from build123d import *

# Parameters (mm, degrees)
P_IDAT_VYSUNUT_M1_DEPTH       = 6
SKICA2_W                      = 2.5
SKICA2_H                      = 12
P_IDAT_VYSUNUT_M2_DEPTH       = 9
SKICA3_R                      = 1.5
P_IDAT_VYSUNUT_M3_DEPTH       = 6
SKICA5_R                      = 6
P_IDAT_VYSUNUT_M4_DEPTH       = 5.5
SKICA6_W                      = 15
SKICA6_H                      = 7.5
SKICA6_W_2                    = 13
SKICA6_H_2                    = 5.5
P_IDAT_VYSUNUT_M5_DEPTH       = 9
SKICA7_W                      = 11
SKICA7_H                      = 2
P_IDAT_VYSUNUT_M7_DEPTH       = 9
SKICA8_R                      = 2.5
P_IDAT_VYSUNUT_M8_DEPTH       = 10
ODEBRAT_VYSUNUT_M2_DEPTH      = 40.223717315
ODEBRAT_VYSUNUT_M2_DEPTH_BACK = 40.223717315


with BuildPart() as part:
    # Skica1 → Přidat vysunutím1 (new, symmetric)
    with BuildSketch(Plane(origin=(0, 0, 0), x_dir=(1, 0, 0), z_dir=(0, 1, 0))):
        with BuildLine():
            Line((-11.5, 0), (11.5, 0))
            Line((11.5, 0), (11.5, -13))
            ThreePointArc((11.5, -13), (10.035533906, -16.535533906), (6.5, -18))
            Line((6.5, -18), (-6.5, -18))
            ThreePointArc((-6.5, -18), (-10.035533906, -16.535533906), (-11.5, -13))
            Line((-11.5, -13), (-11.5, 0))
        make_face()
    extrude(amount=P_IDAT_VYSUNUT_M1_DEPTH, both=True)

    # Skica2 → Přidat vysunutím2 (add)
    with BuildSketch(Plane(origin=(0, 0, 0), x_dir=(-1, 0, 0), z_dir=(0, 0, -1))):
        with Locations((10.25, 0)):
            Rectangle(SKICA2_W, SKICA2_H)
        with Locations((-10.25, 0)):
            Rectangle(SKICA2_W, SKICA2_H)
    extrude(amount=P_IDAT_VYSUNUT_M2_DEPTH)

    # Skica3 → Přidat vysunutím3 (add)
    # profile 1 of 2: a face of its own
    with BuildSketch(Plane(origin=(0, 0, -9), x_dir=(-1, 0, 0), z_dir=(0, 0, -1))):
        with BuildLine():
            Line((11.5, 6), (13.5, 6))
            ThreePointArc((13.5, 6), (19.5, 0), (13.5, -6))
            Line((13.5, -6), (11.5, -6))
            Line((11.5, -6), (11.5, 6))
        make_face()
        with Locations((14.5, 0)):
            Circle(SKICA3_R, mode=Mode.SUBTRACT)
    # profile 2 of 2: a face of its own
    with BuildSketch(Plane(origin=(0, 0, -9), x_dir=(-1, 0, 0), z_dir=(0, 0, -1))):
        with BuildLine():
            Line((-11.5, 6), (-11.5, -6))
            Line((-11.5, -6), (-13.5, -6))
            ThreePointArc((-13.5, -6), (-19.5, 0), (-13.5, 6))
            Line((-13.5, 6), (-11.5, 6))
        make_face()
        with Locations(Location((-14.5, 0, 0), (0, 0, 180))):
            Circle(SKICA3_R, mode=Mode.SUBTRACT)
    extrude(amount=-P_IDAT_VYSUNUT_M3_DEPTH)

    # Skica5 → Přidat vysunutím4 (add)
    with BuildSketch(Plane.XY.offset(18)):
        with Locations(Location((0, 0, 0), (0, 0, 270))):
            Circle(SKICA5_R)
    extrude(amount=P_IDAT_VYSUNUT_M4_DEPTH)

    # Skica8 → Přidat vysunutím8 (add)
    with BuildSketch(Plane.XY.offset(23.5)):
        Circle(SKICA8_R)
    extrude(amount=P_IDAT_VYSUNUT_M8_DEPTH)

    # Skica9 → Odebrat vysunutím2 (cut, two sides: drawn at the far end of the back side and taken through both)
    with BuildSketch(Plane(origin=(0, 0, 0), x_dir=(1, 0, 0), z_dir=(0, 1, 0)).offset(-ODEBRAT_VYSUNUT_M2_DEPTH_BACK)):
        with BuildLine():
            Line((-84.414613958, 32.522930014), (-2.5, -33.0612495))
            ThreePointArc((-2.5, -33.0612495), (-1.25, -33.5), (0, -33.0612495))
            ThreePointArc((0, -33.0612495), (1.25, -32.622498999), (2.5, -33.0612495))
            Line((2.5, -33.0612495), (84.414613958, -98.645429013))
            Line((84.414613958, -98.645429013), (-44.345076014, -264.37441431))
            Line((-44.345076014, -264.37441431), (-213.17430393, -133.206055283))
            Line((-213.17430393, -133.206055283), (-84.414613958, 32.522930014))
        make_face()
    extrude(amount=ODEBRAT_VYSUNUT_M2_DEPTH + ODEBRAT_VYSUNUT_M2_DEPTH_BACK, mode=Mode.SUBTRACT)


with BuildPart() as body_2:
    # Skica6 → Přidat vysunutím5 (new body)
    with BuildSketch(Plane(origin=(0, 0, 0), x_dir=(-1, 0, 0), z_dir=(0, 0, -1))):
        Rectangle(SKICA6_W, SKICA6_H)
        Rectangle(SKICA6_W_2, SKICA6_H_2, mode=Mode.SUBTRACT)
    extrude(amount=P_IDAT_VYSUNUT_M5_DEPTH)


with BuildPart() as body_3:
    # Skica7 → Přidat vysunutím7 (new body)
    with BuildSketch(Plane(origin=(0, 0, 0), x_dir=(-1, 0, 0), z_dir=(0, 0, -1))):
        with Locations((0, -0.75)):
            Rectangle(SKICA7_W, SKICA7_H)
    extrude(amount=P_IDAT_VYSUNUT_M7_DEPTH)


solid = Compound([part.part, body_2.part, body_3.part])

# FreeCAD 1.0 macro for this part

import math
import FreeCAD as App
import Part
import Sketcher


def add_polygon(sketch, points):
    """Adds a closed chain of lines whose ends are joined by coincident constraints."""
    first, n = sketch.GeometryCount, len(points)
    for a, b in zip(points, points[1:] + points[:1]):
        sketch.addGeometry(Part.LineSegment(App.Vector(*a, 0), App.Vector(*b, 0)), False)
    for i in range(n):
        sketch.addConstraint(Sketcher.Constraint("Coincident", first + i, 2, first + (i + 1) % n, 1))

doc = App.newDocument("Part")
body = doc.addObject("PartDesign::Body", "Body")

sketch1 = body.newObject("Sketcher::SketchObject", "Sketch")
sketch1.AttachmentSupport = (doc.getObject("XZ_Plane"), [""])
sketch1.MapMode = "FlatFace"
sketch1.addGeometry([
    Part.LineSegment(App.Vector(12, 0, 0), App.Vector(-12, 0, 0)),
    Part.LineSegment(App.Vector(-12, 0, 0), App.Vector(-12, 13, 0)),
    Part.ArcOfCircle(Part.Circle(App.Vector(-6, 13, 0), App.Vector(0, 0, 1), 5), math.radians(90), math.radians(180)),
    Part.LineSegment(App.Vector(-6, 18, 0), App.Vector(6, 18, 0)),
    Part.ArcOfCircle(Part.Circle(App.Vector(6, 13, 0), App.Vector(0, 0, 1), 5), math.radians(0), math.radians(90)),
    Part.LineSegment(App.Vector(12, 13, 0), App.Vector(12, 0, 0)),
], False)
sketch1.addConstraint([
    Sketcher.Constraint("Coincident", 0, 2, 1, 1),
    Sketcher.Constraint("Tangent", 1, 2, 2, 2),
    Sketcher.Constraint("Tangent", 2, 1, 3, 1),
    Sketcher.Constraint("Tangent", 3, 2, 4, 2),
    Sketcher.Constraint("Tangent", 4, 1, 5, 1),
    Sketcher.Constraint("Coincident", 5, 2, 0, 1),
    Sketcher.Constraint("Horizontal", 0),
    Sketcher.Constraint("Vertical", 1),
    Sketcher.Constraint("Horizontal", 3),
    Sketcher.Constraint("Vertical", 5),
    Sketcher.Constraint("Equal", 2, 4),
    Sketcher.Constraint("Symmetric", 0, 2, 5, 2, -1, 1),
    Sketcher.Constraint("Equal", 3, 1),
    Sketcher.Constraint("Radius", 2, 5.0),
    Sketcher.Constraint("DistanceX", 0, 2, 0, 1, 23.0),
])
pad1 = body.newObject("PartDesign::Pad", "Pad")
pad1.Profile = sketch1
pad1.Length = 12
pad1.Midplane = True

sketch2 = body.newObject("Sketcher::SketchObject", "Sketch001")
sketch2.AttachmentSupport = (doc.getObject("XY_Plane"), [""])
sketch2.MapMode = "FlatFace"
add_polygon(sketch2, [(-9, 6), (-9, -6), (-11.5, -6), (-11.5, 6)])
add_polygon(sketch2, [(11.5, 6), (11.5, -6), (9, -6), (9, 6)])
sketch2.addConstraint([
    Sketcher.Constraint("Vertical", 0),
    Sketcher.Constraint("Horizontal", 1),
    Sketcher.Constraint("Vertical", 2),
    Sketcher.Constraint("Horizontal", 3),
    Sketcher.Constraint("Vertical", 4),
    Sketcher.Constraint("Horizontal", 5),
    Sketcher.Constraint("Vertical", 6),
    Sketcher.Constraint("Horizontal", 7),
    Sketcher.Constraint("Symmetric", 2, 2, 4, 2, -1, 1),
    Sketcher.Constraint("Symmetric", 0, 2, 6, 2, -1, 1),
    Sketcher.Constraint("Horizontal", 1, 2, 4, 2),
    Sketcher.Constraint("DistanceY", 0, 2, 0, 1, 12.0),
    Sketcher.Constraint("DistanceX", 1, 2, 1, 1, 2.5),
    Sketcher.Constraint("DistanceX", 0, 2, -1, 1, 9.0),
])
pad2 = body.newObject("PartDesign::Pad", "Pad001")
pad2.Profile = sketch2
pad2.Length = 9
pad2.Reversed = True

sketch3 = body.newObject("Sketcher::SketchObject", "Sketch002")
sketch3.AttachmentSupport = (doc.getObject("XY_Plane"), [""])
sketch3.MapMode = "FlatFace"
sketch3.AttachmentOffset = App.Placement(App.Vector(0, 0, -9), App.Rotation())
sketch3.addGeometry([
    Part.LineSegment(App.Vector(-13.5, 6, 0), App.Vector(-11.5, 6, 0)),
    Part.LineSegment(App.Vector(-11.5, 6, 0), App.Vector(-11.5, -6, 0)),
    Part.LineSegment(App.Vector(-11.5, -6, 0), App.Vector(-13.5, -6, 0)),
    Part.ArcOfCircle(Part.Circle(App.Vector(-13.5, 0, 0), App.Vector(0, 0, 1), 6), math.radians(90), math.radians(270)),
    Part.Circle(App.Vector(-14.5, 0, 0), App.Vector(0, 0, 1), 1.5),
    Part.LineSegment(App.Vector(11.5, -6, 0), App.Vector(11.5, 6, 0)),
    Part.LineSegment(App.Vector(11.5, 6, 0), App.Vector(13.5, 6, 0)),
    Part.ArcOfCircle(Part.Circle(App.Vector(13.5, 0, 0), App.Vector(0, 0, 1), 6), math.radians(-90), math.radians(90)),
    Part.LineSegment(App.Vector(13.5, -6, 0), App.Vector(11.5, -6, 0)),
    Part.Circle(App.Vector(14.5, 0, 0), App.Vector(0, 0, 1), 1.5),
], False)
sketch3.addConstraint([
    Sketcher.Constraint("Coincident", 0, 2, 1, 1),
    Sketcher.Constraint("Coincident", 1, 2, 2, 1),
    Sketcher.Constraint("Tangent", 2, 2, 3, 2),
    Sketcher.Constraint("Tangent", 3, 1, 0, 1),
    Sketcher.Constraint("Coincident", 5, 2, 6, 1),
    Sketcher.Constraint("Tangent", 6, 2, 7, 2),
    Sketcher.Constraint("Tangent", 7, 1, 8, 1),
    Sketcher.Constraint("Coincident", 8, 2, 5, 1),
    Sketcher.Constraint("Horizontal", 0),
    Sketcher.Constraint("Vertical", 1),
    Sketcher.Constraint("Horizontal", 2),
    Sketcher.Constraint("Vertical", 5),
    Sketcher.Constraint("Horizontal", 6),
    Sketcher.Constraint("Horizontal", 8),
    Sketcher.Constraint("Equal", 3, 7),
    Sketcher.Constraint("Equal", 4, 9),
    Sketcher.Constraint("Symmetric", 3, 3, 7, 3, -1, 1),
    Sketcher.Constraint("Symmetric", 4, 3, 9, 3, -1, 1),
    Sketcher.Constraint("Symmetric", 0, 2, 5, 2, -2),
    Sketcher.Constraint("PointOnObject", 4, 3, -1),
    Sketcher.Constraint("Diameter", 4, 3.0),
    Sketcher.Constraint("Radius", 3, 6.0),
    Sketcher.Constraint("DistanceX", 0, 1, 0, 2, 2.0),
    Sketcher.Constraint("DistanceX", 4, 3, 3, 3, 1.0),
    Sketcher.Constraint("DistanceX", 3, 3, 7, 3, 27.0),
])
pad3 = body.newObject("PartDesign::Pad", "Pad002")
pad3.Profile = sketch3
pad3.Length = 6

sketch4 = body.newObject("Sketcher::SketchObject", "Sketch003")
sketch4.AttachmentSupport = (doc.getObject("XY_Plane"), [""])
sketch4.MapMode = "FlatFace"
sketch4.AttachmentOffset = App.Placement(App.Vector(0, 0, 18), App.Rotation())
sketch4.addGeometry(Part.Circle(App.Vector(0, 0, 0), App.Vector(0, 0, 1), 6), False)
sketch4.addConstraint([
    Sketcher.Constraint("Coincident", 0, 3, -1, 1),
    Sketcher.Constraint("Diameter", 0, 12.0),
])
pad4 = body.newObject("PartDesign::Pad", "Pad003")
pad4.Profile = sketch4
pad4.Length = 5.5

sketch5 = body.newObject("Sketcher::SketchObject", "Sketch004")
sketch5.AttachmentSupport = (doc.getObject("XY_Plane"), [""])
sketch5.MapMode = "FlatFace"
sketch5.AttachmentOffset = App.Placement(App.Vector(0, 0, 23.5), App.Rotation())
sketch5.addGeometry(Part.Circle(App.Vector(0, 0, 0), App.Vector(0, 0, 1), 2.5), False)
sketch5.addConstraint([
    Sketcher.Constraint("Coincident", 0, 3, -1, 1),
    Sketcher.Constraint("Diameter", 0, 5.0),
])
pad5 = body.newObject("PartDesign::Pad", "Pad004")
pad5.Profile = sketch5
pad5.Length = 10

sketch6 = body.newObject("Sketcher::SketchObject", "Sketch005")
sketch6.AttachmentSupport = (doc.getObject("XZ_Plane"), [""])
sketch6.MapMode = "FlatFace"
sketch6.addGeometry([
    Part.LineSegment(App.Vector(-2.5, 33.1, 0), App.Vector(-84.4, -32.5, 0)),
    Part.LineSegment(App.Vector(-84.4, -32.5, 0), App.Vector(-213.2, 133.2, 0)),
    Part.LineSegment(App.Vector(-213.2, 133.2, 0), App.Vector(-44.3, 264.4, 0)),
    Part.LineSegment(App.Vector(-44.3, 264.4, 0), App.Vector(84.4, 98.6, 0)),
    Part.LineSegment(App.Vector(84.4, 98.6, 0), App.Vector(2.5, 33.1, 0)),
    Part.ArcOfCircle(Part.Circle(App.Vector(1.2, 34.6, 0), App.Vector(0, 0, 1), 2), math.radians(-129), math.radians(-51)),
    Part.ArcOfCircle(Part.Circle(App.Vector(-1.2, 31.5, 0), App.Vector(0, 0, 1), 2), math.radians(51), math.radians(129)),
], False)
sketch6.addConstraint([
    Sketcher.Constraint("Coincident", 0, 2, 1, 1),
    Sketcher.Constraint("Coincident", 1, 2, 2, 1),
    Sketcher.Constraint("Coincident", 2, 2, 3, 1),
    Sketcher.Constraint("Coincident", 3, 2, 4, 1),
    Sketcher.Constraint("Tangent", 4, 2, 5, 2),
    Sketcher.Constraint("Tangent", 5, 1, 6, 1),
    Sketcher.Constraint("Tangent", 6, 2, 0, 1),
    Sketcher.Constraint("Equal", 5, 6),
    Sketcher.Constraint("Symmetric", 4, 2, 6, 2, -2),
    Sketcher.Constraint("PointOnObject", 5, 1, -2),
    Sketcher.Constraint("Perpendicular", 1, 2),
    Sketcher.Constraint("Perpendicular", 2, 3),
    Sketcher.Constraint("Equal", 1, 3),
    Sketcher.Constraint("Equal", 0, 4),
    Sketcher.Constraint("Radius", 5, 2.0),
    Sketcher.Constraint("DistanceX", 6, 2, 4, 2, 5.0),
    Sketcher.Constraint("DistanceY", -1, 1, 6, 3, 31.5),
    Sketcher.Constraint("Distance", 2, 213.795338),
    Sketcher.Constraint("DistanceX", 1, 2, 0, 2, 128.75969),
])
pocket1 = body.newObject("PartDesign::Pocket", "Pocket")
pocket1.Profile = sketch6
pocket1.Type = "ThroughAll"
pocket1.Midplane = True
body2 = doc.addObject("PartDesign::Body", "Body001")

sketch7 = body2.newObject("Sketcher::SketchObject", "Sketch006")
sketch7.AttachmentSupport = (doc.getObject("XY_Plane001"), [""])
sketch7.MapMode = "FlatFace"
add_polygon(sketch7, [(8, 4), (8, -4), (-8, -4), (-8, 4)])
add_polygon(sketch7, [(-6, -3), (6, -3), (6, 3), (-6, 3)])
sketch7.addConstraint([
    Sketcher.Constraint("Vertical", 0),
    Sketcher.Constraint("Horizontal", 1),
    Sketcher.Constraint("Vertical", 2),
    Sketcher.Constraint("Horizontal", 3),
    Sketcher.Constraint("Horizontal", 4),
    Sketcher.Constraint("Vertical", 5),
    Sketcher.Constraint("Horizontal", 6),
    Sketcher.Constraint("Vertical", 7),
    Sketcher.Constraint("Symmetric", 0, 2, 2, 2, -1, 1),
    Sketcher.Constraint("Symmetric", 4, 2, 6, 2, -1, 1),
    Sketcher.Constraint("DistanceX", 1, 2, 1, 1, 15.0),
    Sketcher.Constraint("DistanceX", 4, 1, 4, 2, 13.0),
    Sketcher.Constraint("DistanceY", 0, 2, 0, 1, 7.5),
    Sketcher.Constraint("DistanceY", 5, 1, 5, 2, 5.5),
])
pad6 = body2.newObject("PartDesign::Pad", "Pad005")
pad6.Profile = sketch7
pad6.Length = 9
pad6.Reversed = True
body3 = doc.addObject("PartDesign::Body", "Body002")

sketch8 = body3.newObject("Sketcher::SketchObject", "Sketch007")
sketch8.AttachmentSupport = (doc.getObject("XY_Plane002"), [""])
sketch8.MapMode = "FlatFace"
add_polygon(sketch8, [(5.5, 0.2), (5.5, -1.8), (-5.5, -1.8), (-5.5, 0.2)])
sketch8.addConstraint([
    Sketcher.Constraint("Vertical", 0),
    Sketcher.Constraint("Horizontal", 1),
    Sketcher.Constraint("Vertical", 2),
    Sketcher.Constraint("Horizontal", 3),
    Sketcher.Constraint("DistanceX", 1, 2, 1, 1, 11.0),
    Sketcher.Constraint("DistanceY", 0, 2, 0, 1, 2.0),
    Sketcher.Constraint("DistanceX", -1, 1, 0, 2, 5.5),
    Sketcher.Constraint("DistanceY", 0, 2, -1, 1, 1.75),
])
pad7 = body3.newObject("PartDesign::Pad", "Pad006")
pad7.Profile = sketch8
pad7.Length = 9
pad7.Reversed = True

doc.recompute()
